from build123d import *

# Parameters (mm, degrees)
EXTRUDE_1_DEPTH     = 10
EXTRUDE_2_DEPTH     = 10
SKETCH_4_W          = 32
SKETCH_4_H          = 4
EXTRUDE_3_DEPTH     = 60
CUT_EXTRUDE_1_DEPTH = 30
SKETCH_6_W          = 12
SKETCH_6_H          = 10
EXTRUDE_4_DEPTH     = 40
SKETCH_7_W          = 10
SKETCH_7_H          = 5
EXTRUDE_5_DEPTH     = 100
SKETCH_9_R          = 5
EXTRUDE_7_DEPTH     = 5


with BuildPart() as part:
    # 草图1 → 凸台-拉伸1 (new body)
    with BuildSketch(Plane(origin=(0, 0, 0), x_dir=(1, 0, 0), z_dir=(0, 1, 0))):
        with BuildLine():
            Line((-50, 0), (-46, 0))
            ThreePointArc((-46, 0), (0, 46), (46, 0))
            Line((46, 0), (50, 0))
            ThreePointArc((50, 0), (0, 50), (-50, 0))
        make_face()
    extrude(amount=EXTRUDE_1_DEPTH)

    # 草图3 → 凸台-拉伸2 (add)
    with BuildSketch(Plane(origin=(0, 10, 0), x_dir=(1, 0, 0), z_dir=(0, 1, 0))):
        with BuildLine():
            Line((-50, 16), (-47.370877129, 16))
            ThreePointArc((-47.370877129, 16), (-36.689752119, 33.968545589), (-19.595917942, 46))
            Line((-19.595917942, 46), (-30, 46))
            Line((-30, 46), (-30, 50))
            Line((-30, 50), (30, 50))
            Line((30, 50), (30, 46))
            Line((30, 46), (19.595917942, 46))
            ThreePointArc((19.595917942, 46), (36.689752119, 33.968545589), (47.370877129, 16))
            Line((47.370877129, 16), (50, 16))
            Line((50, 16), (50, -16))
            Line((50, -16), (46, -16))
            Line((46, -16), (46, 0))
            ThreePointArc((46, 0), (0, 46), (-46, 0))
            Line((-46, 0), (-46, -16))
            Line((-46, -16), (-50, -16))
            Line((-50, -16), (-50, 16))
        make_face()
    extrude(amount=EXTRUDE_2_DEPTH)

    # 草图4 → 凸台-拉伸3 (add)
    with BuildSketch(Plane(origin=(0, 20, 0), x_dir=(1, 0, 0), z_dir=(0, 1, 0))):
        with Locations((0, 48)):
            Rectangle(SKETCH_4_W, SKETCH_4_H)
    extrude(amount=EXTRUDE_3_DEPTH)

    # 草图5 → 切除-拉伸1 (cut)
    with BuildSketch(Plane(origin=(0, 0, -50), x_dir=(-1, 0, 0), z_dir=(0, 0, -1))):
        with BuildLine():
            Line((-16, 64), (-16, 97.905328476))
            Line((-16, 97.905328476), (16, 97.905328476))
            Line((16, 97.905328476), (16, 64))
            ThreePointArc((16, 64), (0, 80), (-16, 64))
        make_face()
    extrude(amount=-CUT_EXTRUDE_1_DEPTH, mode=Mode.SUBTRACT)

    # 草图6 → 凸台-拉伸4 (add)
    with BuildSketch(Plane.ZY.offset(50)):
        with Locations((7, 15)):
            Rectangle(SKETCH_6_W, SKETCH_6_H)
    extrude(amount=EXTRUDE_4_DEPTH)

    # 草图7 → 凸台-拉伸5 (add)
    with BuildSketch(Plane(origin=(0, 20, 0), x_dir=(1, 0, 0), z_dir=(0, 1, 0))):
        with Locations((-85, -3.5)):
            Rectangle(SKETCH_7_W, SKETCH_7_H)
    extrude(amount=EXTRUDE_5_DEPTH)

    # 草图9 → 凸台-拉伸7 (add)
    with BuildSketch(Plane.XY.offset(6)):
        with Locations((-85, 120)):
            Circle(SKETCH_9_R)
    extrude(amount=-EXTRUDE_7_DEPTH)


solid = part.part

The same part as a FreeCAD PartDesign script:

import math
import FreeCAD as App
import Part
import Sketcher

V = App.Vector

doc = App.newDocument("Part")
body = doc.addObject("PartDesign::Body", "Body")

# Sketch on XZ plane
sketch1 = doc.addObject("Sketcher::SketchObject", "Sketch")
body.addObject(sketch1)
sketch1.AttachmentSupport = (doc.XZ_Plane, [""])
sketch1.MapMode = "FlatFace"
sketch1.addGeometry(Part.LineSegment(V(-50, 0, 0), V(-46, 0, 0)), False)
sketch1.addGeometry(Part.ArcOfCircle(Part.Circle(V(0, 0, 0), V(0, 0, 1), 46), math.radians(180), math.radians(360)), False)
sketch1.addGeometry(Part.LineSegment(V(46, 0, 0), V(50, 0, 0)), False)
sketch1.addGeometry(Part.ArcOfCircle(Part.Circle(V(0, 0, 0), V(0, 0, 1), 50), math.radians(180), math.radians(360)), False)
sketch1.addConstraint(Sketcher.Constraint("Coincident", 0, 2, 1, 1))
sketch1.addConstraint(Sketcher.Constraint("Coincident", 1, 2, 2, 1))
sketch1.addConstraint(Sketcher.Constraint("Coincident", 2, 2, 3, 2))
sketch1.addConstraint(Sketcher.Constraint("Coincident", 3, 1, 0, 1))
sketch1.addConstraint(Sketcher.Constraint("Horizontal", 0))
sketch1.addConstraint(Sketcher.Constraint("Horizontal", 2))
sketch1.addConstraint(Sketcher.Constraint("Coincident", 1, 3, -1, 1))
sketch1.addConstraint(Sketcher.Constraint("Coincident", 3, 3, -1, 1))
sketch1.addConstraint(Sketcher.Constraint("PointOnObject", 0, 2, -1))
sketch1.addConstraint(Sketcher.Constraint("PointOnObject", 1, 2, -1))
sketch1.addConstraint(Sketcher.Constraint("Radius", 1, 46.0))
sketch1.addConstraint(Sketcher.Constraint("Radius", 3, 50.0))
pad1 = doc.addObject("PartDesign::Pad", "Pad")
body.addObject(pad1)
pad1.Profile = sketch1
pad1.Length = 10
pad1.Reversed = True

# Sketch on XZ plane
sketch2 = doc.addObject("Sketcher::SketchObject", "Sketch001")
body.addObject(sketch2)
sketch2.AttachmentSupport = (doc.XZ_Plane, [""])
sketch2.MapMode = "FlatFace"
sketch2.AttachmentOffset = App.Placement(V(0, 0, -10), App.Rotation())
sketch2.addGeometry(Part.LineSegment(V(-47.4, -16, 0), V(-50, -16, 0)), False)
sketch2.addGeometry(Part.LineSegment(V(-50, -16, 0), V(-50, 16, 0)), False)
sketch2.addGeometry(Part.LineSegment(V(-50, 16, 0), V(-46, 16, 0)), False)
sketch2.addGeometry(Part.LineSegment(V(-46, 16, 0), V(-46, 0, 0)), False)
sketch2.addGeometry(Part.ArcOfCircle(Part.Circle(V(0, 0, 0), V(0, 0, 1), 46), math.radians(180), math.radians(360)), False)
sketch2.addGeometry(Part.LineSegment(V(46, 0, 0), V(46, 16, 0)), False)
sketch2.addGeometry(Part.LineSegment(V(46, 16, 0), V(50, 16, 0)), False)
sketch2.addGeometry(Part.LineSegment(V(50, 16, 0), V(50, -16, 0)), False)
sketch2.addGeometry(Part.LineSegment(V(50, -16, 0), V(47.4, -16, 0)), False)
sketch2.addGeometry(Part.ArcOfCircle(Part.Circle(V(0, 0, 0), V(0, 0, 1), 50), math.radians(-67), math.radians(-19)), False)
sketch2.addGeometry(Part.LineSegment(V(19.6, -46, 0), V(30, -46, 0)), False)
sketch2.addGeometry(Part.LineSegment(V(30, -46, 0), V(30, -50, 0)), False)
sketch2.addGeometry(Part.LineSegment(V(30, -50, 0), V(-30, -50, 0)), False)
sketch2.addGeometry(Part.LineSegment(V(-30, -50, 0), V(-30, -46, 0)), False)
sketch2.addGeometry(Part.LineSegment(V(-30, -46, 0), V(-19.6, -46, 0)), False)
sketch2.addGeometry(Part.ArcOfCircle(Part.Circle(V(0, 0, 0), V(0, 0, 1), 50), math.radians(-161), math.radians(-113)), False)
sketch2.addConstraint(Sketcher.Constraint("Coincident", 0, 2, 1, 1))
sketch2.addConstraint(Sketcher.Constraint("Coincident", 1, 2, 2, 1))
sketch2.addConstraint(Sketcher.Constraint("Coincident", 2, 2, 3, 1))
sketch2.addConstraint(Sketcher.Constraint("Tangent", 3, 2, 4, 1))
sketch2.addConstraint(Sketcher.Constraint("Tangent", 4, 2, 5, 1))
sketch2.addConstraint(Sketcher.Constraint("Coincident", 5, 2, 6, 1))
sketch2.addConstraint(Sketcher.Constraint("Coincident", 6, 2, 7, 1))
sketch2.addConstraint(Sketcher.Constraint("Coincident", 7, 2, 8, 1))
sketch2.addConstraint(Sketcher.Constraint("Coincident", 8, 2, 9, 2))
sketch2.addConstraint(Sketcher.Constraint("Coincident", 9, 1, 10, 1))
sketch2.addConstraint(Sketcher.Constraint("Coincident", 10, 2, 11, 1))
sketch2.addConstraint(Sketcher.Constraint("Coincident", 11, 2, 12, 1))
sketch2.addConstraint(Sketcher.Constraint("Coincident", 12, 2, 13, 1))
sketch2.addConstraint(Sketcher.Constraint("Coincident", 13, 2, 14, 1))
sketch2.addConstraint(Sketcher.Constraint("Coincident", 14, 2, 15, 2))
sketch2.addConstraint(Sketcher.Constraint("Coincident", 15, 1, 0, 1))
sketch2.addConstraint(Sketcher.Constraint("Horizontal", 0))
sketch2.addConstraint(Sketcher.Constraint("Vertical", 1))
sketch2.addConstraint(Sketcher.Constraint("Horizontal", 2))
sketch2.addConstraint(Sketcher.Constraint("Vertical", 3))
sketch2.addConstraint(Sketcher.Constraint("Vertical", 5))
sketch2.addConstraint(Sketcher.Constraint("Horizontal", 6))
sketch2.addConstraint(Sketcher.Constraint("Vertical", 7))
sketch2.addConstraint(Sketcher.Constraint("Horizontal", 8))
sketch2.addConstraint(Sketcher.Constraint("Horizontal", 10))
sketch2.addConstraint(Sketcher.Constraint("Vertical", 11))
sketch2.addConstraint(Sketcher.Constraint("Horizontal", 12))
sketch2.addConstraint(Sketcher.Constraint("Vertical", 13))
sketch2.addConstraint(Sketcher.Constraint("Horizontal", 14))
sketch2.addConstraint(Sketcher.Constraint("Coincident", 4, 3, -1, 1))
sketch2.addConstraint(Sketcher.Constraint("Coincident", 9, 3, -1, 1))
sketch2.addConstraint(Sketcher.Constraint("Coincident", 15, 3, -1, 1))
sketch2.addConstraint(Sketcher.Constraint("Equal", 9, 15))
sketch2.addConstraint(Sketcher.Constraint("Symmetric", 0, 2, 6, 2, -1, 1))
sketch2.addConstraint(Sketcher.Constraint("Symmetric", 10, 2, 13, 2, -2))
sketch2.addConstraint(Sketcher.Constraint("Horizontal", 2, 2, 5, 2))
sketch2.addConstraint(Sketcher.Constraint("Horizontal", 0, 2, 7, 2))
sketch2.addConstraint(Sketcher.Constraint("Equal", 6, 11))
sketch2.addConstraint(Sketcher.Constraint("Radius", 4, 46.0))
sketch2.addConstraint(Sketcher.Constraint("Radius", 9, 50.0))
sketch2.addConstraint(Sketcher.Constraint("DistanceX", 2, 1, 2, 2, 4.0))
sketch2.addConstraint(Sketcher.Constraint("DistanceX", 12, 2, 12, 1, 60.0))
sketch2.addConstraint(Sketcher.Constraint("DistanceY", 1, 1, 1, 2, 32.0))
sketch2.addConstraint(Sketcher.Constraint("DistanceY", 9, 1, -1, 1, 46.0))
pad2 = doc.addObject("PartDesign::Pad", "Pad001")
body.addObject(pad2)
pad2.Profile = sketch2
pad2.Length = 10
pad2.Reversed = True

# Sketch on XZ plane
sketch3 = doc.addObject("Sketcher::SketchObject", "Sketch002")
body.addObject(sketch3)
sketch3.AttachmentSupport = (doc.XZ_Plane, [""])
sketch3.MapMode = "FlatFace"
sketch3.AttachmentOffset = App.Placement(V(0, 0, -20), App.Rotation())
sketch3.addGeometry(Part.LineSegment(V(-16, -50, 0), V(-16, -46, 0)), False)
sketch3.addGeometry(Part.LineSegment(V(-16, -46, 0), V(16, -46, 0)), False)
sketch3.addGeometry(Part.LineSegment(V(16, -46, 0), V(16, -50, 0)), False)
sketch3.addGeometry(Part.LineSegment(V(16, -50, 0), V(-16, -50, 0)), False)
sketch3.addConstraint(Sketcher.Constraint("Coincident", 0, 2, 1, 1))
sketch3.addConstraint(Sketcher.Constraint("Coincident", 1, 2, 2, 1))
sketch3.addConstraint(Sketcher.Constraint("Coincident", 2, 2, 3, 1))
sketch3.addConstraint(Sketcher.Constraint("Coincident", 3, 2, 0, 1))
sketch3.addConstraint(Sketcher.Constraint("Vertical", 0))
sketch3.addConstraint(Sketcher.Constraint("Horizontal", 1))
sketch3.addConstraint(Sketcher.Constraint("Vertical", 2))
sketch3.addConstraint(Sketcher.Constraint("Horizontal", 3))
sketch3.addConstraint(Sketcher.Constraint("DistanceX", 1, 1, 1, 2, 32.0))
sketch3.addConstraint(Sketcher.Constraint("DistanceY", 0, 1, 0, 2, 4.0))
sketch3.addConstraint(Sketcher.Constraint("DistanceX", 0, 2, -1, 1, 16.0))
sketch3.addConstraint(Sketcher.Constraint("DistanceY", 0, 2, -1, 1, 46.0))
pad3 = doc.addObject("PartDesign::Pad", "Pad002")
body.addObject(pad3)
pad3.Profile = sketch3
pad3.Length = 60
pad3.Reversed = True

# Sketch on XY plane
sketch4 = doc.addObject("Sketcher::SketchObject", "Sketch003")
body.addObject(sketch4)
sketch4.AttachmentSupport = (doc.XY_Plane, [""])
sketch4.MapMode = "FlatFace"
sketch4.AttachmentOffset = App.Placement(V(0, 0, -50), App.Rotation())
sketch4.addGeometry(Part.LineSegment(V(16, 98, 0), V(16, 64, 0)), False)
sketch4.addGeometry(Part.ArcOfCircle(Part.Circle(V(0, 64, 0), V(0, 0, 1), 16), math.radians(0), math.radians(180)), False)
sketch4.addGeometry(Part.LineSegment(V(-16, 64, 0), V(-16, 98, 0)), False)
sketch4.addGeometry(Part.LineSegment(V(-16, 98, 0), V(16, 98, 0)), False)
sketch4.addConstraint(Sketcher.Constraint("Tangent", 0, 2, 1, 1))
sketch4.addConstraint(Sketcher.Constraint("Tangent", 1, 2, 2, 1))
sketch4.addConstraint(Sketcher.Constraint("Coincident", 2, 2, 3, 1))
sketch4.addConstraint(Sketcher.Constraint("Coincident", 3, 2, 0, 1))
sketch4.addConstraint(Sketcher.Constraint("Vertical", 0))
sketch4.addConstraint(Sketcher.Constraint("Vertical", 2))
sketch4.addConstraint(Sketcher.Constraint("Horizontal", 3))
sketch4.addConstraint(Sketcher.Constraint("PointOnObject", 1, 3, -2))
sketch4.addConstraint(Sketcher.Constraint("Radius", 1, 16.0))
sketch4.addConstraint(Sketcher.Constraint("DistanceY", -1, 1, 1, 3, 64.0))
sketch4.addConstraint(Sketcher.Constraint("DistanceY", 0, 2, 0, 1, 33.905328))
pocket1 = doc.addObject("PartDesign::Pocket", "Pocket")
body.addObject(pocket1)
pocket1.Profile = sketch4
pocket1.Length = 30
pocket1.Reversed = True

# Sketch on YZ plane
sketch5 = doc.addObject("Sketcher::SketchObject", "Sketch004")
body.addObject(sketch5)
sketch5.AttachmentSupport = (doc.YZ_Plane, [""])
sketch5.MapMode = "FlatFace"
sketch5.AttachmentOffset = App.Placement(V(0, 0, -50), App.Rotation())
sketch5.addGeometry(Part.LineSegment(V(20, 1, 0), V(10, 1, 0)), False)
sketch5.addGeometry(Part.LineSegment(V(10, 1, 0), V(10, 13, 0)), False)
sketch5.addGeometry(Part.LineSegment(V(10, 13, 0), V(20, 13, 0)), False)
sketch5.addGeometry(Part.LineSegment(V(20, 13, 0), V(20, 1, 0)), False)
sketch5.addConstraint(Sketcher.Constraint("Coincident", 0, 2, 1, 1))
sketch5.addConstraint(Sketcher.Constraint("Coincident", 1, 2, 2, 1))
sketch5.addConstraint(Sketcher.Constraint("Coincident", 2, 2, 3, 1))
sketch5.addConstraint(Sketcher.Constraint("Coincident", 3, 2, 0, 1))
sketch5.addConstraint(Sketcher.Constraint("Horizontal", 0))
sketch5.addConstraint(Sketcher.Constraint("Vertical", 1))
sketch5.addConstraint(Sketcher.Constraint("Horizontal", 2))
sketch5.addConstraint(Sketcher.Constraint("Vertical", 3))
sketch5.addConstraint(Sketcher.Constraint("DistanceX", 0, 2, 0, 1, 10.0))
sketch5.addConstraint(Sketcher.Constraint("DistanceY", 1, 1, 1, 2, 12.0))
sketch5.addConstraint(Sketcher.Constraint("DistanceX", -1, 1, 0, 2, 10.0))
sketch5.addConstraint(Sketcher.Constraint("DistanceY", -1, 1, 0, 2, 1.0))
pad4 = doc.addObject("PartDesign::Pad", "Pad003")
body.addObject(pad4)
pad4.Profile = sketch5
pad4.Length = 40
pad4.Reversed = True

# Sketch on XZ plane
sketch6 = doc.addObject("Sketcher::SketchObject", "Sketch005")
body.addObject(sketch6)
sketch6.AttachmentSupport = (doc.XZ_Plane, [""])
sketch6.MapMode = "FlatFace"
sketch6.AttachmentOffset = App.Placement(V(0, 0, -20), App.Rotation())
sketch6.addGeometry(Part.LineSegment(V(-90, 1, 0), V(-90, 6, 0)), False)
sketch6.addGeometry(Part.LineSegment(V(-90, 6, 0), V(-80, 6, 0)), False)
sketch6.addGeometry(Part.LineSegment(V(-80, 6, 0), V(-80, 1, 0)), False)
sketch6.addGeometry(Part.LineSegment(V(-80, 1, 0), V(-90, 1, 0)), False)
sketch6.addConstraint(Sketcher.Constraint("Coincident", 0, 2, 1, 1))
sketch6.addConstraint(Sketcher.Constraint("Coincident", 1, 2, 2, 1))
sketch6.addConstraint(Sketcher.Constraint("Coincident", 2, 2, 3, 1))
sketch6.addConstraint(Sketcher.Constraint("Coincident", 3, 2, 0, 1))
sketch6.addConstraint(Sketcher.Constraint("Vertical", 0))
sketch6.addConstraint(Sketcher.Constraint("Horizontal", 1))
sketch6.addConstraint(Sketcher.Constraint("Vertical", 2))
sketch6.addConstraint(Sketcher.Constraint("Horizontal", 3))
sketch6.addConstraint(Sketcher.Constraint("DistanceX", 1, 1, 1, 2, 10.0))
sketch6.addConstraint(Sketcher.Constraint("DistanceY", 0, 1, 0, 2, 5.0))
sketch6.addConstraint(Sketcher.Constraint("DistanceX", 0, 2, -1, 1, 90.0))
sketch6.addConstraint(Sketcher.Constraint("DistanceY", -1, 1, 0, 2, 6.0))
pad5 = doc.addObject("PartDesign::Pad", "Pad004")
body.addObject(pad5)
pad5.Profile = sketch6
pad5.Length = 100
pad5.Reversed = True

# Sketch on XY plane
sketch7 = doc.addObject("Sketcher::SketchObject", "Sketch006")
body.addObject(sketch7)
sketch7.AttachmentSupport = (doc.XY_Plane, [""])
sketch7.MapMode = "FlatFace"
sketch7.AttachmentOffset = App.Placement(V(0, 0, 6), App.Rotation())
sketch7.addGeometry(Part.Circle(V(-85, 120, 0), V(0, 0, 1), 5), False)
sketch7.addConstraint(Sketcher.Constraint("Diameter", 0, 10.0))
sketch7.addConstraint(Sketcher.Constraint("DistanceX", 0, 3, -1, 1, 85.0))
sketch7.addConstraint(Sketcher.Constraint("DistanceY", -1, 1, 0, 3, 120.0))
pad6 = doc.addObject("PartDesign::Pad", "Pad005")
body.addObject(pad6)
pad6.Profile = sketch7
pad6.Length = 5
pad6.Reversed = True

doc.recompute()
